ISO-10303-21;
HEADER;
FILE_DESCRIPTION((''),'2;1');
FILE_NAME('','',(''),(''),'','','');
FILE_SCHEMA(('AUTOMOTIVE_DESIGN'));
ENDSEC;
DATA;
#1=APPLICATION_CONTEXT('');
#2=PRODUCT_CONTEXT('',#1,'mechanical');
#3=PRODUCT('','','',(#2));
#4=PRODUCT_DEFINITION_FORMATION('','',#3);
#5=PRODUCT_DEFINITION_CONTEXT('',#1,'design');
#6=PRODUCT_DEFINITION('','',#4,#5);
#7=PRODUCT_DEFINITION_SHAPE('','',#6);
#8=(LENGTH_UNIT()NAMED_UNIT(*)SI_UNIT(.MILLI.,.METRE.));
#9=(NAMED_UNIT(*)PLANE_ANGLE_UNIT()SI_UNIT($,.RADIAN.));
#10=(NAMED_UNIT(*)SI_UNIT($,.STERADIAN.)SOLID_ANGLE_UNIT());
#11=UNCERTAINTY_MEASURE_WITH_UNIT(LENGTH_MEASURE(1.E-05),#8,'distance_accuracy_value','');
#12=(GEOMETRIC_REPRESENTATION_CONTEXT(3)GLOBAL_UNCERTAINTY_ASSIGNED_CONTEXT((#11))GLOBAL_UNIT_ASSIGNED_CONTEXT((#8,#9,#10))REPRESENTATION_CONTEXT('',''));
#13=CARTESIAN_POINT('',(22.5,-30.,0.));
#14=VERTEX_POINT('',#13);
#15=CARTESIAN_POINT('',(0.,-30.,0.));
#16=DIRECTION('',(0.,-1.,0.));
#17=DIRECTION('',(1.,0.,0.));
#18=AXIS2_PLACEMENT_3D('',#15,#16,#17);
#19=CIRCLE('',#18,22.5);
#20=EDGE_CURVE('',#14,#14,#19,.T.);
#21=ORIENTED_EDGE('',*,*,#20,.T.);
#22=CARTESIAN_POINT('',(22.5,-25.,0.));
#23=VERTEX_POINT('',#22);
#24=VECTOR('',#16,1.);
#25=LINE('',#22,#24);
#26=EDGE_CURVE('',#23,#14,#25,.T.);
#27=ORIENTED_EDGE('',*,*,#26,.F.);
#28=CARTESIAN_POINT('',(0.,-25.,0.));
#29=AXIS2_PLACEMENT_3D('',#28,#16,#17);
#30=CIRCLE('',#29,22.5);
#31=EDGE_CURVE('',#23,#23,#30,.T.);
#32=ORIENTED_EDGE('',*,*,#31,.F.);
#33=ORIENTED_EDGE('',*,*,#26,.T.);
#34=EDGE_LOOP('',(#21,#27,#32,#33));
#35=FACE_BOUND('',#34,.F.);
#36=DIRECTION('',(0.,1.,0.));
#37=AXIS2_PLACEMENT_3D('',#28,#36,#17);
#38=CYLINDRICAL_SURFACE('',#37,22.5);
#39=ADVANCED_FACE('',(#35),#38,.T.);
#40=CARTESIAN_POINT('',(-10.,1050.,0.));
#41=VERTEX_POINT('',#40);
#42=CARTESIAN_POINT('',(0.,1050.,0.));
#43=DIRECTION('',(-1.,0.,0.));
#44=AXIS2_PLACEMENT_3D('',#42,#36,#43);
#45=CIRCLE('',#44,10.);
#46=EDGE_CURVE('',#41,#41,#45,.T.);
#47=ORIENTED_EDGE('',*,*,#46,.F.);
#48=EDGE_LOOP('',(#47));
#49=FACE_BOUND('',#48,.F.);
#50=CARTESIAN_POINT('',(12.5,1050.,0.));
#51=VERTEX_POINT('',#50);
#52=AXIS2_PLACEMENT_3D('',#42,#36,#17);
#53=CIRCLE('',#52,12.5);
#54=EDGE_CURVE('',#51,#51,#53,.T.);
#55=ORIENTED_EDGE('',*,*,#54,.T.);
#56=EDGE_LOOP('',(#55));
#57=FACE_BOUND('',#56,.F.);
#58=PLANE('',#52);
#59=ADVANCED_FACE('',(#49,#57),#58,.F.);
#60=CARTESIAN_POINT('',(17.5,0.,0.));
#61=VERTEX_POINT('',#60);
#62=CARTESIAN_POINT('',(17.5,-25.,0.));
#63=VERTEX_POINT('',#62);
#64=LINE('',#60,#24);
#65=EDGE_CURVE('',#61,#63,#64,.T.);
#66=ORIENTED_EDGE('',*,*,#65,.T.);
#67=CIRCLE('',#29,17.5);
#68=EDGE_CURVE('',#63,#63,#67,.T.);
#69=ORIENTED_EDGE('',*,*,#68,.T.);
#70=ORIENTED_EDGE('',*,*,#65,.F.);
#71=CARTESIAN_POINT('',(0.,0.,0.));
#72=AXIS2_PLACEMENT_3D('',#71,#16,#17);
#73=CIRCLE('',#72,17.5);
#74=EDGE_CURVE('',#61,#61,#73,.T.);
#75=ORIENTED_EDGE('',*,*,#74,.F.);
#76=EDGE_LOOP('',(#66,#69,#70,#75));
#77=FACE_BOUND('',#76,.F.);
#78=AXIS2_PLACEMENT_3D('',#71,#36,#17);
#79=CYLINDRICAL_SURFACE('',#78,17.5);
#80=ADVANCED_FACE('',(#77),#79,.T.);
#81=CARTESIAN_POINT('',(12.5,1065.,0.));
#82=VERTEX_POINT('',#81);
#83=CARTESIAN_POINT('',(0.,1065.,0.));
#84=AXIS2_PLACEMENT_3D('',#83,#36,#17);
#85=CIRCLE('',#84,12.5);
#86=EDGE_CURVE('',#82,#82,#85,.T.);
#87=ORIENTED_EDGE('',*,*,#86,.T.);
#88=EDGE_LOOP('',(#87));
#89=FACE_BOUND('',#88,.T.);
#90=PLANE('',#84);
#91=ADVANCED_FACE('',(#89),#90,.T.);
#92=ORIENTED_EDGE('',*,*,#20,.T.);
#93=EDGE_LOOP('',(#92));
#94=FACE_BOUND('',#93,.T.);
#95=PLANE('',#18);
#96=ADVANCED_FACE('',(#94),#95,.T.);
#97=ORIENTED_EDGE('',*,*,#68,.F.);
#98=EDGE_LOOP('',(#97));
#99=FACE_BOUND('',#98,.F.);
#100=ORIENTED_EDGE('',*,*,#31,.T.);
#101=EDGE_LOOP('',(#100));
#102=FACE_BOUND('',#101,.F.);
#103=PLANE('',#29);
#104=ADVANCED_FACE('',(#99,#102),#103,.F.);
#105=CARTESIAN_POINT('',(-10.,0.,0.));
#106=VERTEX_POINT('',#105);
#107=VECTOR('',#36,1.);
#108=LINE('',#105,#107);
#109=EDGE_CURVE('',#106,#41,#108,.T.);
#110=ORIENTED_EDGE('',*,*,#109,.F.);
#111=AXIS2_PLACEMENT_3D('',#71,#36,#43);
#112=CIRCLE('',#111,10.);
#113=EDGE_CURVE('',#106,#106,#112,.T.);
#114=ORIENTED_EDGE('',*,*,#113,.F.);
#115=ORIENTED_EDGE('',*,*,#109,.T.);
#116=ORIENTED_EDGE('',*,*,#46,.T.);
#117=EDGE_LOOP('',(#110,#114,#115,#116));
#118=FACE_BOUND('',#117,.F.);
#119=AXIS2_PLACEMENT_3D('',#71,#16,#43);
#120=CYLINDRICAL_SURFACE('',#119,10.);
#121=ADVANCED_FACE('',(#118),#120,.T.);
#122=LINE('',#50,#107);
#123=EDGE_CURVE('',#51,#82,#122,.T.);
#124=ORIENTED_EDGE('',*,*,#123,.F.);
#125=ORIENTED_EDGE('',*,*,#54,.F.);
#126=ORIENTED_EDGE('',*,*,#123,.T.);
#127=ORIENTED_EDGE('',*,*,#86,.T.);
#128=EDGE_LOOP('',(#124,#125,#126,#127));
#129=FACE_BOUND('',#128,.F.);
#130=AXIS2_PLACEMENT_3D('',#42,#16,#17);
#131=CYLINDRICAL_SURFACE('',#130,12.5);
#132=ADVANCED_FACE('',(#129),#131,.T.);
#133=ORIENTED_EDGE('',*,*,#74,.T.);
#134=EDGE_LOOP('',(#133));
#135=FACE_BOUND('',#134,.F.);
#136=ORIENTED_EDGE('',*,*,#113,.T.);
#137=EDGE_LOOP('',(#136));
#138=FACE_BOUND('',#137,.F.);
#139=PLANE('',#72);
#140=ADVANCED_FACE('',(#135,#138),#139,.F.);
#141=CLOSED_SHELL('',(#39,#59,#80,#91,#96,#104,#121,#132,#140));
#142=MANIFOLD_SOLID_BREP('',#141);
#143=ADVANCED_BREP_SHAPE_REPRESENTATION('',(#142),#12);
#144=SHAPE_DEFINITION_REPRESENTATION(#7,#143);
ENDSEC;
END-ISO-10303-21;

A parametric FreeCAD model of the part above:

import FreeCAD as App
import Part
import Sketcher
from FreeCAD import Vector

doc = App.newDocument("Part")
body = doc.addObject("PartDesign::Body", "Body")

sketch1 = body.newObject("Sketcher::SketchObject", "Sketch")
sketch1.AttachmentSupport = (doc.getObject("XZ_Plane"), [""])
sketch1.MapMode = "FlatFace"
sketch1.addGeometry(Part.Circle(Vector(0, 0, 0), Vector(0, 0, 1), 10), False)
sketch1.addConstraint(Sketcher.Constraint("Coincident", 0, 3, -1, 1))
sketch1.addConstraint(Sketcher.Constraint("Diameter", 0, 20.0))
pad1 = body.newObject("PartDesign::Pad", "Pad")
pad1.Profile = sketch1
pad1.Length = 1050
pad1.Reversed = True

sketch2 = body.newObject("Sketcher::SketchObject", "Sketch001")
sketch2.AttachmentSupport = (doc.getObject("XZ_Plane"), [""])
sketch2.MapMode = "FlatFace"
sketch2.addGeometry(Part.Circle(Vector(0, 0, 0), Vector(0, 0, 1), 18), False)
sketch2.addConstraint(Sketcher.Constraint("Coincident", 0, 3, -1, 1))
sketch2.addConstraint(Sketcher.Constraint("Diameter", 0, 35.0))
pad2 = body.newObject("PartDesign::Pad", "Pad001")
pad2.Profile = sketch2
pad2.Length = 25

sketch3 = body.newObject("Sketcher::SketchObject", "Sketch002")
sketch3.AttachmentSupport = (doc.getObject("XZ_Plane"), [""])
sketch3.MapMode = "FlatFace"
sketch3.AttachmentOffset = App.Placement(Vector(0, 0, 25), App.Rotation())
sketch3.addGeometry(Part.Circle(Vector(0, 0, 0), Vector(0, 0, 1), 22), False)
sketch3.addConstraint(Sketcher.Constraint("Coincident", 0, 3, -1, 1))
sketch3.addConstraint(Sketcher.Constraint("Diameter", 0, 45.0))
pad3 = body.newObject("PartDesign::Pad", "Pad002")
pad3.Profile = sketch3
pad3.Length = 5

sketch4 = body.newObject("Sketcher::SketchObject", "Sketch003")
sketch4.AttachmentSupport = (doc.getObject("XZ_Plane"), [""])
sketch4.MapMode = "FlatFace"
sketch4.AttachmentOffset = App.Placement(Vector(0, 0, -1050), App.Rotation())
sketch4.addGeometry(Part.Circle(Vector(0, 0, 0), Vector(0, 0, 1), 12), False)
sketch4.addConstraint(Sketcher.Constraint("Coincident", 0, 3, -1, 1))
sketch4.addConstraint(Sketcher.Constraint("Diameter", 0, 25.0))
pad4 = body.newObject("PartDesign::Pad", "Pad003")
pad4.Profile = sketch4
pad4.Length = 15
pad4.Reversed = True

doc.recompute()
